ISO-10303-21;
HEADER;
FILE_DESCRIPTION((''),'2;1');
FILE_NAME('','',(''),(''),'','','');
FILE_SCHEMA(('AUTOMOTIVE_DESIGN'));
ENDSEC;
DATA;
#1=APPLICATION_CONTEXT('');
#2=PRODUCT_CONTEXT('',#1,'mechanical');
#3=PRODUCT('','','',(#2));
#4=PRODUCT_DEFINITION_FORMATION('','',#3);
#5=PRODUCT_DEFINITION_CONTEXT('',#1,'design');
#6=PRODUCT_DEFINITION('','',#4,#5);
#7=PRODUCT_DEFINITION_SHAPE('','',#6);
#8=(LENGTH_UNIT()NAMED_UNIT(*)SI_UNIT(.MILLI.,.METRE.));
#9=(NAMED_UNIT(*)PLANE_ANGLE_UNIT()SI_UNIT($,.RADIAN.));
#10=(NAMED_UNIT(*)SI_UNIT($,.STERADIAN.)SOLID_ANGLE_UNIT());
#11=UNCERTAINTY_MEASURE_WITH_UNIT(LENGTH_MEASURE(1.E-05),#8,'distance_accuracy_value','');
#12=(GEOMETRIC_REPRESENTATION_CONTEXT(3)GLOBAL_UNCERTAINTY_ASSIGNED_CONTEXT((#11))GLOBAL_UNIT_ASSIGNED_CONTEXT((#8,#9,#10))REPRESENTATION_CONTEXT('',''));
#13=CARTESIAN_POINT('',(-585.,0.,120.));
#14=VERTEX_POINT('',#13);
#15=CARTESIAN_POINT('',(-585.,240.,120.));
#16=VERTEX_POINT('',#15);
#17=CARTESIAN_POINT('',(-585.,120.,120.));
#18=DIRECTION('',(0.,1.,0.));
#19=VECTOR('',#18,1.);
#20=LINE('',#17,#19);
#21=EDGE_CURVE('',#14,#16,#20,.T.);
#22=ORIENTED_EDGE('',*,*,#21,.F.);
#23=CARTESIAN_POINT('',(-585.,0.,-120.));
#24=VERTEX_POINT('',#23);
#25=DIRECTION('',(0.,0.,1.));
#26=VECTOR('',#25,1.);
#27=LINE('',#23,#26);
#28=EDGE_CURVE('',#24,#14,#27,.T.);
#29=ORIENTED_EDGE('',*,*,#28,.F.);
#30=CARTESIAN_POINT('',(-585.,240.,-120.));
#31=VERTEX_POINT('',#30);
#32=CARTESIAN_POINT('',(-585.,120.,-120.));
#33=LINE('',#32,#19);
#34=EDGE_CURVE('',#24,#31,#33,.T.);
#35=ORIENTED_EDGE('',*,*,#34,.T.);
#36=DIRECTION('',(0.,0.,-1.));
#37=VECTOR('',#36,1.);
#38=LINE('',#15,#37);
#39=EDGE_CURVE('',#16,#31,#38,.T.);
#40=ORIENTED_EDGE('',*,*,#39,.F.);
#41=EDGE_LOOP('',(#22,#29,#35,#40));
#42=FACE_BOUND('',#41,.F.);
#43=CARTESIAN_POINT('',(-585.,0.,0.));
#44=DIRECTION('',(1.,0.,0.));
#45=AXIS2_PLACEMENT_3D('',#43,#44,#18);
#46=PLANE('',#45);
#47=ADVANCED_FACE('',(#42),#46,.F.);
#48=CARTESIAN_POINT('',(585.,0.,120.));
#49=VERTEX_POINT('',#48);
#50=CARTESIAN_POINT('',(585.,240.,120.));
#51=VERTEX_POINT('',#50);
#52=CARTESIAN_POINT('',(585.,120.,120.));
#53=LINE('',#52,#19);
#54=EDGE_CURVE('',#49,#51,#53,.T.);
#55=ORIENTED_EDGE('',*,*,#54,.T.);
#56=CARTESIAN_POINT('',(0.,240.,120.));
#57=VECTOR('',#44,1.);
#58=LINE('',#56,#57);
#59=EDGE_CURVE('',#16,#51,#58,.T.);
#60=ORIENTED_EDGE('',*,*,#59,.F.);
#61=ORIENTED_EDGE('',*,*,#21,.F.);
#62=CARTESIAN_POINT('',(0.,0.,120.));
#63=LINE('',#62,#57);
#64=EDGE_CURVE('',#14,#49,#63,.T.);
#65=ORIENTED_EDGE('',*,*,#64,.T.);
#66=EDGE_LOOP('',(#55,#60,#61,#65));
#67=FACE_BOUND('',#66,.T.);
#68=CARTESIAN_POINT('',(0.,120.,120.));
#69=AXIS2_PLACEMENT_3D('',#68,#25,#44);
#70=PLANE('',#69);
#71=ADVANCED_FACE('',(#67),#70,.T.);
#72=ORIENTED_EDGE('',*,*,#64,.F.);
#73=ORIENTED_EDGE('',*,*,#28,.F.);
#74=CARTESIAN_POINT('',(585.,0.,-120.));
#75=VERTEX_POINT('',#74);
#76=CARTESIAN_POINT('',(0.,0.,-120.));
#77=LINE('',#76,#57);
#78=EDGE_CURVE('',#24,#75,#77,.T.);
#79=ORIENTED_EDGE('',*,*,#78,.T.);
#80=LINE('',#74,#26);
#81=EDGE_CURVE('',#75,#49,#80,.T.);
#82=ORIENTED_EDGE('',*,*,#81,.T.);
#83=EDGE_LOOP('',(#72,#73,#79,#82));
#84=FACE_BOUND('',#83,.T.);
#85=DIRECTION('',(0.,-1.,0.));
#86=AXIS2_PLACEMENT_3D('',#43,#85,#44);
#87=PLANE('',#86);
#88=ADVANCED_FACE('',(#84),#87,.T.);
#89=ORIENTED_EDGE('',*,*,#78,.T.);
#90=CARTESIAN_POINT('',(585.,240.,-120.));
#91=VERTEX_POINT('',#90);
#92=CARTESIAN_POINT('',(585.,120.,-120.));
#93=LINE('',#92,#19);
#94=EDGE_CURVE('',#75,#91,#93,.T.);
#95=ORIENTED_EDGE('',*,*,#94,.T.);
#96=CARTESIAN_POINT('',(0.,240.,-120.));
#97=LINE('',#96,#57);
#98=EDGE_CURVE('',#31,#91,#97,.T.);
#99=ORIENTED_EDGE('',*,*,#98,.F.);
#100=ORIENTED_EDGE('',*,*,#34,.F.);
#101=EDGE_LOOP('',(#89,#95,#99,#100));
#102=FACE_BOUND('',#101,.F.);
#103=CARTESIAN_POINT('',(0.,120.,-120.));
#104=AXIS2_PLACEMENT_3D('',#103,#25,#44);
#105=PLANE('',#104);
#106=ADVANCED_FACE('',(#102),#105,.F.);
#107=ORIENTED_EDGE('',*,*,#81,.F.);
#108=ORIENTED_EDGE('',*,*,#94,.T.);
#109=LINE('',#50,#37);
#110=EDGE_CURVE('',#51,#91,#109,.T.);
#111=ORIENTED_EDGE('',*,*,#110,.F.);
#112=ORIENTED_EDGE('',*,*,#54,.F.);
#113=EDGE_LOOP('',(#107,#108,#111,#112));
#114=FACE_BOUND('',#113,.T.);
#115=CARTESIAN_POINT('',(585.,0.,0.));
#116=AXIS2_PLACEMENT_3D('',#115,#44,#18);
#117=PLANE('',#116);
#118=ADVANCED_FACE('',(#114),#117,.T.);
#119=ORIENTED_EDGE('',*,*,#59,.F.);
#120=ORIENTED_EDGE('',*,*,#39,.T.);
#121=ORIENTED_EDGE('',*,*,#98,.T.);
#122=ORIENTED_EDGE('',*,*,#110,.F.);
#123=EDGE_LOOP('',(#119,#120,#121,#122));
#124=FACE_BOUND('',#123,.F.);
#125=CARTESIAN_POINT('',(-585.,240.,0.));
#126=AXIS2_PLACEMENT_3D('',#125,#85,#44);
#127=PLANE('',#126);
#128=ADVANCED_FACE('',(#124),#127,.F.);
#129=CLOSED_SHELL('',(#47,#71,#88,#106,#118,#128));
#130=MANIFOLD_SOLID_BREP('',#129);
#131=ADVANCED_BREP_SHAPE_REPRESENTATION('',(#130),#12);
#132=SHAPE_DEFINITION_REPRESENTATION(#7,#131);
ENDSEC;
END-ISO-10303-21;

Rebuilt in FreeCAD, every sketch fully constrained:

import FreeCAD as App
import Part
import Sketcher
Q = App.Units.Quantity


def add_polygon(sketch, points):
    """Adds a closed chain of lines whose ends are joined by coincident constraints."""
    first, n = sketch.GeometryCount, len(points)
    for a, b in zip(points, points[1:] + points[:1]):
        sketch.addGeometry(Part.LineSegment(App.Vector(*a, 0), App.Vector(*b, 0)), False)
    for i in range(n):
        sketch.addConstraint(Sketcher.Constraint("Coincident", first + i, 2, first + (i + 1) % n, 1))

doc = App.newDocument("Part")
body = doc.addObject("PartDesign::Body", "Body")

sketch1 = body.newObject("Sketcher::SketchObject", "Sketch")
sketch1.AttachmentSupport = (doc.getObject("XY_Plane"), [""])
sketch1.MapMode = "FlatFace"
add_polygon(sketch1, [(-585, 240), (-585, 0), (585, 0), (585, 240)])
sketch1.addConstraint([
    Sketcher.Constraint("Vertical", 0),
    Sketcher.Constraint("Horizontal", 1),
    Sketcher.Constraint("Vertical", 2),
    Sketcher.Constraint("Horizontal", 3),
    Sketcher.Constraint("Symmetric", 0, 2, 1, 2, -1, 1),
    Sketcher.Constraint("DistanceX", 1, 1, 1, 2, Q("1170 mm")),
    Sketcher.Constraint("DistanceY", 0, 2, 0, 1, Q("240 mm")),
])
pad1 = body.newObject("PartDesign::Pad", "Pad")
pad1.Profile = sketch1
pad1.Length = 240
pad1.Midplane = True

doc.recompute()
